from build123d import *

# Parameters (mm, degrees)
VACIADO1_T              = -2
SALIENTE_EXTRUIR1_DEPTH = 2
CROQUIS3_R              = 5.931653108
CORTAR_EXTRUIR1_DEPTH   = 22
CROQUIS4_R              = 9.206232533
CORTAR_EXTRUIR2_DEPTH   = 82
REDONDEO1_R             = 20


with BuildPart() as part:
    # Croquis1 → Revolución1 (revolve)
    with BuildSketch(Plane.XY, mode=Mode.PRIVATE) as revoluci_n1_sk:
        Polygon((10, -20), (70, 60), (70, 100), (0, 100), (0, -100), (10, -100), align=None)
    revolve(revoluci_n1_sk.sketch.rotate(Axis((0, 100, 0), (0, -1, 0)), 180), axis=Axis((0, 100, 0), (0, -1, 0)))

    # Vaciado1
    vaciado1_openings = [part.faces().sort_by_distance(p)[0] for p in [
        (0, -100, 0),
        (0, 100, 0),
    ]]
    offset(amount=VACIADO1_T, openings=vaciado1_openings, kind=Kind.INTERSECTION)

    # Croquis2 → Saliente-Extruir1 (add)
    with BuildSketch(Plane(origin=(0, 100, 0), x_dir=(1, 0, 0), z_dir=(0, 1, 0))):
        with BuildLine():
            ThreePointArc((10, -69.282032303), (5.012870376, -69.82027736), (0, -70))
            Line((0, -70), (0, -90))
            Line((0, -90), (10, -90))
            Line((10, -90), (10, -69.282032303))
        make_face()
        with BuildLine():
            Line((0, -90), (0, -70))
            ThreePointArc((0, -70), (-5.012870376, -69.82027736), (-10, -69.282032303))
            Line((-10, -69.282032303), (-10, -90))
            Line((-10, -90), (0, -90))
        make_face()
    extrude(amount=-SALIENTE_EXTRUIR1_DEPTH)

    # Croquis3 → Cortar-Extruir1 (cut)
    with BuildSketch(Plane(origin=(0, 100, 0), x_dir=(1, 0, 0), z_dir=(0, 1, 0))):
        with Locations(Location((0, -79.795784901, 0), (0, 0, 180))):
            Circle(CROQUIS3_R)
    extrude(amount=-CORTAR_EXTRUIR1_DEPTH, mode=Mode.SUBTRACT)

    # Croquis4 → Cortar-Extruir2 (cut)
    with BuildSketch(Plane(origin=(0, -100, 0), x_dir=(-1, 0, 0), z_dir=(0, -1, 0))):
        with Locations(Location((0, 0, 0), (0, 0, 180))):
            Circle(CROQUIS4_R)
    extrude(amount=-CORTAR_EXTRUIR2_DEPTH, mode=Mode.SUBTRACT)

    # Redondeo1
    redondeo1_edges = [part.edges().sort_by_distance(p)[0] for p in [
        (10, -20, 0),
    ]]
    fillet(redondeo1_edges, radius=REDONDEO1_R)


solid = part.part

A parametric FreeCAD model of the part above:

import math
import FreeCAD as App
import Part
import Sketcher
from FreeCAD import Vector


def edges_at(feature, points):
    """Names of the edges that pass closest to the given points."""
    edges = feature.Shape.Edges
    near = lambda p: min(range(len(edges)), key=lambda i: edges[i].distToShape(Part.Vertex(*p))[0])
    return sorted({f"Edge{near(p) + 1}" for p in points})


def faces_at(feature, points):
    """Names of the faces that lie closest to the given points."""
    faces = feature.Shape.Faces
    near = lambda p: min(range(len(faces)), key=lambda i: faces[i].distToShape(Part.Vertex(*p))[0])
    return sorted({f"Face{near(p) + 1}" for p in points})

doc = App.newDocument("Part")
body = doc.addObject("PartDesign::Body", "Body")

# Sketch on XY plane
sketch1 = body.newObject("Sketcher::SketchObject", "Sketch")
sketch1.AttachmentSupport = (doc.getObject("XY_Plane"), [""])
sketch1.MapMode = "FlatFace"
sketch1.addGeometry([
    Part.LineSegment(Vector(10, -20, 0), Vector(70, 60, 0)),  # 0
    Part.LineSegment(Vector(70, 60, 0), Vector(70, 100, 0)),  # 1
    Part.LineSegment(Vector(70, 100, 0), Vector(0, 100, 0)),  # 2
    Part.LineSegment(Vector(0, 100, 0), Vector(0, -100, 0)),  # 3
    Part.LineSegment(Vector(0, -100, 0), Vector(10, -100, 0)),  # 4
    Part.LineSegment(Vector(10, -100, 0), Vector(10, -20, 0)),  # 5
], False)
sketch1.addConstraint([
    Sketcher.Constraint("Coincident", 0, 2, 1, 1),
    Sketcher.Constraint("Coincident", 1, 2, 2, 1),
    Sketcher.Constraint("Coincident", 2, 2, 3, 1),
    Sketcher.Constraint("Coincident", 3, 2, 4, 1),
    Sketcher.Constraint("Coincident", 4, 2, 5, 1),
    Sketcher.Constraint("Coincident", 5, 2, 0, 1),
    Sketcher.Constraint("Vertical", 1),
    Sketcher.Constraint("Horizontal", 2),
    Sketcher.Constraint("Vertical", 3),
    Sketcher.Constraint("Horizontal", 4),
    Sketcher.Constraint("Vertical", 5),
    Sketcher.Constraint("Symmetric", 2, 2, 3, 2, -1, 1),
    Sketcher.Constraint("DistanceX", 2, 2, 2, 1, 70.0),
    Sketcher.Constraint("DistanceX", 4, 1, 4, 2, 10.0),
    Sketcher.Constraint("DistanceY", 1, 1, 1, 2, 40.0),
    Sketcher.Constraint("DistanceY", 3, 2, 3, 1, 200.0),
    Sketcher.Constraint("DistanceY", 5, 1, 5, 2, 80.0),
])
revolution = body.newObject("PartDesign::Revolution", "Revolution")
revolution.Profile = sketch1
revolution.ReferenceAxis = (sketch1, ["V_Axis"])
revolution.Angle = 360
doc.recompute()

thickness = body.newObject("PartDesign::Thickness", "Thickness")
thickness.Base = (revolution, faces_at(revolution, [(0, -100, 0), (0, 100, 0)]))
thickness.Value = 2
thickness.Reversed = True
thickness.Join = "Intersection"

# Sketch on XZ plane
sketch2 = body.newObject("Sketcher::SketchObject", "Sketch001")
sketch2.AttachmentSupport = (doc.getObject("XZ_Plane"), [""])
sketch2.MapMode = "FlatFace"
sketch2.AttachmentOffset = App.Placement(Vector(0, 0, -100), App.Rotation())
sketch2.addGeometry([
    Part.ArcOfCircle(Part.Circle(Vector(0, 0, 0), Vector(0, 0, 1), 70), math.radians(81.79), math.radians(90)),  # 0
    Part.ArcOfCircle(Part.Circle(Vector(0, 0, 0), Vector(0, 0, 1), 70), math.radians(90), math.radians(98.21)),  # 1
    Part.LineSegment(Vector(-10, 69, 0), Vector(-10, 90, 0)),  # 2
    Part.LineSegment(Vector(-10, 90, 0), Vector(10, 90, 0)),  # 3
    Part.LineSegment(Vector(10, 90, 0), Vector(10, 69, 0)),  # 4
], False)
sketch2.addConstraint([
    Sketcher.Constraint("Tangent", 0, 2, 1, 1),
    Sketcher.Constraint("Coincident", 1, 2, 2, 1),
    Sketcher.Constraint("Coincident", 2, 2, 3, 1),
    Sketcher.Constraint("Coincident", 3, 2, 4, 1),
    Sketcher.Constraint("Coincident", 4, 2, 0, 1),
    Sketcher.Constraint("Vertical", 2),
    Sketcher.Constraint("Horizontal", 3),
    Sketcher.Constraint("Vertical", 4),
    Sketcher.Constraint("Coincident", 0, 3, -1, 1),
    Sketcher.Constraint("Equal", 0, 1),
    Sketcher.Constraint("PointOnObject", 0, 2, -2),
    Sketcher.Constraint("Horizontal", 1, 2, 4, 2),
    Sketcher.Constraint("Radius", 0, 70.0),
    Sketcher.Constraint("DistanceX", 3, 1, 3, 2, 20.0),
    Sketcher.Constraint("DistanceY", -1, 1, 2, 2, 90.0),
])
pad1 = body.newObject("PartDesign::Pad", "Pad")
pad1.Profile = sketch2
pad1.Length = 2

# Sketch on XZ plane
sketch3 = body.newObject("Sketcher::SketchObject", "Sketch002")
sketch3.AttachmentSupport = (doc.getObject("XZ_Plane"), [""])
sketch3.MapMode = "FlatFace"
sketch3.AttachmentOffset = App.Placement(Vector(0, 0, -100), App.Rotation())
sketch3.addGeometry(Part.Circle(Vector(0, 80, 0), Vector(0, 0, 1), 6), False)
sketch3.addConstraint([
    Sketcher.Constraint("PointOnObject", 0, 3, -2),
    Sketcher.Constraint("Diameter", 0, 11.863306),
    Sketcher.Constraint("DistanceY", -1, 1, 0, 3, 79.795785),
])
pocket1 = body.newObject("PartDesign::Pocket", "Pocket")
pocket1.Profile = sketch3
pocket1.Length = 22
pocket1.Reversed = True

# Sketch on XZ plane
sketch4 = body.newObject("Sketcher::SketchObject", "Sketch003")
sketch4.AttachmentSupport = (doc.getObject("XZ_Plane"), [""])
sketch4.MapMode = "FlatFace"
sketch4.AttachmentOffset = App.Placement(Vector(0, 0, 100), App.Rotation())
sketch4.addGeometry(Part.Circle(Vector(0, 0, 0), Vector(0, 0, 1), 9), False)
sketch4.addConstraint([
    Sketcher.Constraint("Coincident", 0, 3, -1, 1),
    Sketcher.Constraint("Diameter", 0, 18.412465),
])
pocket2 = body.newObject("PartDesign::Pocket", "Pocket001")
pocket2.Profile = sketch4
pocket2.Length = 82
doc.recompute()

fillet = body.newObject("PartDesign::Fillet", "Fillet")
fillet.Base = (pocket2, edges_at(pocket2, [(10, -20, 0)]))
fillet.Radius = 20

doc.recompute()
